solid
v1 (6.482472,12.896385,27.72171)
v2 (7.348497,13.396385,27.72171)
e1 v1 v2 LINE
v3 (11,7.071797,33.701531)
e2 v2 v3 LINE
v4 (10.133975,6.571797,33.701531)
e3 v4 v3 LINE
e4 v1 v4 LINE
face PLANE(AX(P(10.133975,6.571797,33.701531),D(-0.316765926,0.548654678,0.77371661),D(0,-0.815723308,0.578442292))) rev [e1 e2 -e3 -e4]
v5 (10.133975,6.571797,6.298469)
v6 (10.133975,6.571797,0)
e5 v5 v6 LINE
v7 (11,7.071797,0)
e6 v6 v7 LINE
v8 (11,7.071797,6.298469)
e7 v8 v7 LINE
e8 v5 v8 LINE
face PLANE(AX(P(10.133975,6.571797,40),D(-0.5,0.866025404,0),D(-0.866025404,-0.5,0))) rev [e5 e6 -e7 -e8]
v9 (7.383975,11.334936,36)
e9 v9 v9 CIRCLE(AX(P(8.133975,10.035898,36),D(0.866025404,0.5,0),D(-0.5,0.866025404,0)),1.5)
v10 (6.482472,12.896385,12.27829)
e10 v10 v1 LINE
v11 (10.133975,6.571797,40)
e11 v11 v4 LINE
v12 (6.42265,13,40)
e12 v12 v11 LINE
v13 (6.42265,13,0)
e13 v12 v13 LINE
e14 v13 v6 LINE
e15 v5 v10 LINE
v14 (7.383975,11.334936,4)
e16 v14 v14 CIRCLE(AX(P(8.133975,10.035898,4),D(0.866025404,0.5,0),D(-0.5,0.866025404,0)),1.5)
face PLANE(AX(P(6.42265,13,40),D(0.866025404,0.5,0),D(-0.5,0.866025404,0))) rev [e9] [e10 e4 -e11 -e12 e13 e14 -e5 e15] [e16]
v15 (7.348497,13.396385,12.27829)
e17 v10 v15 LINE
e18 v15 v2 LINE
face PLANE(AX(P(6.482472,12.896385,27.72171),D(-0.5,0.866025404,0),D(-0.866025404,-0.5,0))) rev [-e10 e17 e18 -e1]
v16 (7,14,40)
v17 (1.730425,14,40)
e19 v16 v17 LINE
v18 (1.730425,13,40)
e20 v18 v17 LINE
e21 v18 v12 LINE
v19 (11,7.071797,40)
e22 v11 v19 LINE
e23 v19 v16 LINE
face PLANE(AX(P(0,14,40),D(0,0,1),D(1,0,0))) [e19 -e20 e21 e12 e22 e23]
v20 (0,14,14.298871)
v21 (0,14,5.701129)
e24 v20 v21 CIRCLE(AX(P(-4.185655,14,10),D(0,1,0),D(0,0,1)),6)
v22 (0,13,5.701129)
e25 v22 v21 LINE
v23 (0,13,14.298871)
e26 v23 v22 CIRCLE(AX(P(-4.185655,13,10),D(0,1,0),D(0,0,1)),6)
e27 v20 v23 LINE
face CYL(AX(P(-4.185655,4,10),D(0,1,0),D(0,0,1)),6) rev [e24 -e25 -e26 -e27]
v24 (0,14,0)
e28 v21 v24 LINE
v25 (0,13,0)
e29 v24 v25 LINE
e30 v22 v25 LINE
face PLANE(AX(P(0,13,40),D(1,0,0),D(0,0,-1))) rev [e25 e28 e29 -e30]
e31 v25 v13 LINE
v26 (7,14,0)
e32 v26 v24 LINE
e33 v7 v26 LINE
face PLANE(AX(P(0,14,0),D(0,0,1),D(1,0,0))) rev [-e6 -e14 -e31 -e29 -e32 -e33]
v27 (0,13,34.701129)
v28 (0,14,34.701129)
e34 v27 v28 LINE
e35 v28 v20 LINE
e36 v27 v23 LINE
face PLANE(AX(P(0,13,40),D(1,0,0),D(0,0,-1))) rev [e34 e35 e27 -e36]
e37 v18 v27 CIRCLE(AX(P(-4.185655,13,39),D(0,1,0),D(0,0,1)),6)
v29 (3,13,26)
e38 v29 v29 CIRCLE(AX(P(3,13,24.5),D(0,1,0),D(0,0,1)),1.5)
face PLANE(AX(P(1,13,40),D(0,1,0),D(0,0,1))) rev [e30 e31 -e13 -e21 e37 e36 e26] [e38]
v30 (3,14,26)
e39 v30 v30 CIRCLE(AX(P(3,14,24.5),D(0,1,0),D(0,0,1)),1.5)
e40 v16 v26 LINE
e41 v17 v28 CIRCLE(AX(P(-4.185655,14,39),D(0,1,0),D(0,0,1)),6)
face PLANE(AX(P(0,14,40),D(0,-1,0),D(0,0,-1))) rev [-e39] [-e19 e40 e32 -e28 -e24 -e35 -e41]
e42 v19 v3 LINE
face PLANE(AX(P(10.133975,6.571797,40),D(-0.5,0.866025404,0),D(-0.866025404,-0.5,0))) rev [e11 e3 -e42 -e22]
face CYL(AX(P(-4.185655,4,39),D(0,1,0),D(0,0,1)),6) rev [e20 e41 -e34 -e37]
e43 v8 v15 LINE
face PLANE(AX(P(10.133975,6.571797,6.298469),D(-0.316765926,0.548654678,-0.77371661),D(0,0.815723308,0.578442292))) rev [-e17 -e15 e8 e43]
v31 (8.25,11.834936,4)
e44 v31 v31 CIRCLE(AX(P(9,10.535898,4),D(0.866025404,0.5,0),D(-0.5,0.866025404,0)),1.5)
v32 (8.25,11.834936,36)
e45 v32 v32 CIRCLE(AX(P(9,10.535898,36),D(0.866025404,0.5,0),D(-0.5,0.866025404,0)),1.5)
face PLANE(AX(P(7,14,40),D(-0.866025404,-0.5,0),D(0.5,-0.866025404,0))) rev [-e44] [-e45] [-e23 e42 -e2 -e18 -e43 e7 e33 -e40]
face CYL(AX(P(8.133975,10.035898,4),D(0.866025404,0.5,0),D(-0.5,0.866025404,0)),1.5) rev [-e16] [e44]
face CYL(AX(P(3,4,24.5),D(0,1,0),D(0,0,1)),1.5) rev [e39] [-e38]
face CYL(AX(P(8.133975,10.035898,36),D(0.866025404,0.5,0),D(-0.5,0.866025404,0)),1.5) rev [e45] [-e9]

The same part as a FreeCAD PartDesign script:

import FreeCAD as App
import Part
import Sketcher
Q = App.Units.Quantity


def add_polygon(sketch, points):
    """Adds a closed chain of lines whose ends are joined by coincident constraints."""
    first, n = sketch.GeometryCount, len(points)
    for a, b in zip(points, points[1:] + points[:1]):
        sketch.addGeometry(Part.LineSegment(App.Vector(*a, 0), App.Vector(*b, 0)), False)
    for i in range(n):
        sketch.addConstraint(Sketcher.Constraint("Coincident", first + i, 2, first + (i + 1) % n, 1))

doc = App.newDocument("Part")
params = doc.addObject("Spreadsheet::Sheet", "Params")
for row, (alias, value) in enumerate([
    ("sketch1_width", "7 mm"),
    ("sketch1_height", "1 mm"),
    ("sketch1_length", "1 mm"),
    ("sketch1_length2", "8 mm"),
    ("pad1_length", "40 mm"),
    ("sketch2_diameter", "3 mm"),
    ("pocket1_length", "1 mm"),
    ("sketch3_diameter", "3 mm"),
    ("sketch3_diameter2", "12 mm"),
    ("pocket2_length", "10 mm"),
], start=1):
    params.set(f"A{row}", alias)
    params.set(f"B{row}", "=" + value)
    params.setAlias(f"B{row}", alias)

body = doc.addObject("PartDesign::Body", "Body")

# Sketch on XY plane
sketch1 = body.newObject("Sketcher::SketchObject", "Sketch")
sketch1.AttachmentSupport = (doc.getObject("XY_Plane"), [""])
sketch1.MapMode = "FlatFace"
add_polygon(sketch1, [(0, 14), (0, 13), (6.4, 13), (10.1, 6.6), (11, 7.1), (7, 14)])  # lines 0-5
sketch1.addConstraint([
    Sketcher.Constraint("Vertical", 0),
    Sketcher.Constraint("Horizontal", 1),
    Sketcher.Constraint("Horizontal", 5),
    Sketcher.Constraint("PointOnObject", 0, 2, -2),
    Sketcher.Constraint("Perpendicular", 2, 3),
    Sketcher.Constraint("Perpendicular", 3, 4),
    Sketcher.Constraint("DistanceX", 5, 2, 5, 1, Q("7 mm")),
    Sketcher.Constraint("DistanceY", 0, 2, 0, 1, Q("1 mm")),
    Sketcher.Constraint("Angle", 2, Q("-60 deg")),
    Sketcher.Constraint("Distance", 3, Q("1 mm")),
    Sketcher.Constraint("Distance", 4, Q("8 mm")),
    Sketcher.Constraint("DistanceY", -1, 1, 0, 2, Q("13 mm")),
])
sketch1.setExpression("Constraints[12]", "Params.sketch1_width")
sketch1.setExpression("Constraints[13]", "Params.sketch1_height")
sketch1.setExpression("Constraints[15]", "Params.sketch1_length")
sketch1.setExpression("Constraints[16]", "Params.sketch1_length2")
pad1 = body.newObject("PartDesign::Pad", "Pad")
pad1.Profile = sketch1
pad1.setExpression("Length", "Params.pad1_length")

# Sketch on an angled plane
sketch2 = body.newObject("Sketcher::SketchObject", "Sketch001")
sketch2.Placement = App.Placement(App.Vector(11.312178, 6.531089, 0), App.Rotation(App.Vector(0, 0, -1), App.Vector(-0.5, 0.866025404, 0), App.Vector(0.866025404, 0.5, 0), "ZXY"))
sketch2.addGeometry(Part.Circle(App.Vector(-36, 4.6, 0), App.Vector(0, 0, 1), 1.5), False)  # 0
sketch2.addGeometry(Part.Circle(App.Vector(-4, 4.6, 0), App.Vector(0, 0, 1), 1.5), False)  # 1
add_polygon(sketch2, [(-27.7, 7.9), (-33.7, 0.6), (-6.3, 0.6), (-12.3, 7.9)])  # lines 2-5
sketch2.addConstraint([
    Sketcher.Constraint("Horizontal", 3),
    Sketcher.Constraint("Horizontal", 5),
    Sketcher.Constraint("Equal", 0, 1),
    Sketcher.Constraint("Horizontal", 0, 3, 1, 3),
    Sketcher.Constraint("Equal", 2, 4),
    Sketcher.Constraint("Diameter", 0, Q("3 mm")),
    Sketcher.Constraint("DistanceX", 0, 3, -1, 1, Q("36 mm")),
    Sketcher.Constraint("DistanceX", 1, 3, -1, 1, Q("4 mm")),
    Sketcher.Constraint("DistanceY", 2, 2, 0, 3, Q("4 mm")),
    Sketcher.Constraint("DistanceX", 3, 1, 3, 2, Q("27.403061 mm")),
    Sketcher.Constraint("DistanceX", 5, 2, 5, 1, Q("15.443421 mm")),
    Sketcher.Constraint("DistanceX", 2, 2, -1, 1, Q("33.701531 mm")),
    Sketcher.Constraint("DistanceY", -1, 1, 4, 2, Q("7.927361 mm")),
    Sketcher.Constraint("Distance", 2, Q("9.438863 mm")),
])
sketch2.setExpression("Constraints[9]", "Params.sketch2_diameter")
pocket1 = body.newObject("PartDesign::Pocket", "Pocket")
pocket1.Profile = sketch2
pocket1.setExpression("Length", "Params.pocket1_length")

# Sketch on XZ plane
sketch3 = body.newObject("Sketcher::SketchObject", "Sketch002")
sketch3.AttachmentSupport = (doc.getObject("XZ_Plane"), [""])
sketch3.MapMode = "FlatFace"
sketch3.AttachmentOffset = App.Placement(App.Vector(0, 0, -14), App.Rotation())
sketch3.addGeometry([
    Part.Circle(App.Vector(3, 24.5, 0), App.Vector(0, 0, 1), 1.5),
    Part.Circle(App.Vector(-4.2, 10, 0), App.Vector(0, 0, 1), 6),
    Part.Circle(App.Vector(-4.2, 39, 0), App.Vector(0, 0, 1), 6),
], False)
sketch3.addConstraint([
    Sketcher.Constraint("Equal", 1, 2),
    Sketcher.Constraint("Vertical", 1, 3, 2, 3),
    Sketcher.Constraint("Diameter", 0, Q("3 mm")),
    Sketcher.Constraint("Diameter", 1, Q("12 mm")),
    Sketcher.Constraint("DistanceX", -1, 1, 0, 3, Q("3 mm")),
    Sketcher.Constraint("DistanceY", -1, 1, 1, 3, Q("10 mm")),
    Sketcher.Constraint("DistanceY", -1, 1, 2, 3, Q("39 mm")),
    Sketcher.Constraint("DistanceY", -1, 1, 0, 3, Q("24.5 mm")),
    Sketcher.Constraint("DistanceX", 1, 3, -1, 1, Q("4.185655 mm")),
])
sketch3.setExpression("Constraints[2]", "Params.sketch3_diameter")
sketch3.setExpression("Constraints[3]", "Params.sketch3_diameter2")
pocket2 = body.newObject("PartDesign::Pocket", "Pocket001")
pocket2.Profile = sketch3
pocket2.setExpression("Length", "Params.pocket2_length")
pocket2.Reversed = True

doc.recompute()
